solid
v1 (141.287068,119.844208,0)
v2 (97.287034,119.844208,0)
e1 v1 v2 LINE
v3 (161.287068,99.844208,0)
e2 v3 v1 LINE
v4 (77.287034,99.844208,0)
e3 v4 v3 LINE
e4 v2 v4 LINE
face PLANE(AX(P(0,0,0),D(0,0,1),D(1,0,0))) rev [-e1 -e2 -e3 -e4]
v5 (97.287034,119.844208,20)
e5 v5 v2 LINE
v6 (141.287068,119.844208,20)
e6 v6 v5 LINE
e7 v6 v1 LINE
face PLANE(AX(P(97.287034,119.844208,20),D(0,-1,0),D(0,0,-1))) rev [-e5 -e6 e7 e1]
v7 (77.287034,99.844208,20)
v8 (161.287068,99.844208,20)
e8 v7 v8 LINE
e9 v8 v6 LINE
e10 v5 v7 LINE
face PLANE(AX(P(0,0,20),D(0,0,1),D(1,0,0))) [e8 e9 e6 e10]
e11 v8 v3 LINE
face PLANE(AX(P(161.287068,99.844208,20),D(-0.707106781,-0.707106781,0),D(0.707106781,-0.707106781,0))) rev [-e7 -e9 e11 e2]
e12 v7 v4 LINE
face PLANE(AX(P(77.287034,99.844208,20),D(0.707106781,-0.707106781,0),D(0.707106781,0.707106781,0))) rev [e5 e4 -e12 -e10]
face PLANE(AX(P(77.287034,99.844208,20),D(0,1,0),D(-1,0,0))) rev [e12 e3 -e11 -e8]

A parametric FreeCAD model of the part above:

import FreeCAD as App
import Part
import Sketcher
from FreeCAD import Vector


def add_polygon(sketch, points):
    """Adds a closed chain of lines whose ends are joined by coincident constraints."""
    first, n = sketch.GeometryCount, len(points)
    for a, b in zip(points, points[1:] + points[:1]):
        sketch.addGeometry(Part.LineSegment(App.Vector(*a, 0), App.Vector(*b, 0)), False)
    for i in range(n):
        sketch.addConstraint(Sketcher.Constraint("Coincident", first + i, 2, first + (i + 1) % n, 1))

doc = App.newDocument("Part")
body = doc.addObject("PartDesign::Body", "Body")

# Sketch on XY plane
sketch1 = body.newObject("Sketcher::SketchObject", "Sketch")
sketch1.AttachmentSupport = (doc.getObject("XY_Plane"), [""])
sketch1.MapMode = "FlatFace"
add_polygon(sketch1, [(77, 100), (161, 100), (141, 120), (97, 120)])  # lines 0-3
sketch1.addConstraint(Sketcher.Constraint("Horizontal", 0))
sketch1.addConstraint(Sketcher.Constraint("Horizontal", 2))
sketch1.addConstraint(Sketcher.Constraint("Perpendicular", 1, 3))
sketch1.addConstraint(Sketcher.Constraint("Equal", 1, 3))
sketch1.addConstraint(Sketcher.Constraint("DistanceX", 1, 2, 0, 2, 20.0))
sketch1.addConstraint(Sketcher.Constraint("DistanceX", 0, 1, 0, 2, 84.000034))
sketch1.addConstraint(Sketcher.Constraint("DistanceX", -1, 1, 0, 2, 161.287068))
sketch1.addConstraint(Sketcher.Constraint("DistanceY", -1, 1, 0, 2, 99.844208))
pad1 = body.newObject("PartDesign::Pad", "Pad")
pad1.Profile = sketch1
pad1.Length = 20

doc.recompute()
